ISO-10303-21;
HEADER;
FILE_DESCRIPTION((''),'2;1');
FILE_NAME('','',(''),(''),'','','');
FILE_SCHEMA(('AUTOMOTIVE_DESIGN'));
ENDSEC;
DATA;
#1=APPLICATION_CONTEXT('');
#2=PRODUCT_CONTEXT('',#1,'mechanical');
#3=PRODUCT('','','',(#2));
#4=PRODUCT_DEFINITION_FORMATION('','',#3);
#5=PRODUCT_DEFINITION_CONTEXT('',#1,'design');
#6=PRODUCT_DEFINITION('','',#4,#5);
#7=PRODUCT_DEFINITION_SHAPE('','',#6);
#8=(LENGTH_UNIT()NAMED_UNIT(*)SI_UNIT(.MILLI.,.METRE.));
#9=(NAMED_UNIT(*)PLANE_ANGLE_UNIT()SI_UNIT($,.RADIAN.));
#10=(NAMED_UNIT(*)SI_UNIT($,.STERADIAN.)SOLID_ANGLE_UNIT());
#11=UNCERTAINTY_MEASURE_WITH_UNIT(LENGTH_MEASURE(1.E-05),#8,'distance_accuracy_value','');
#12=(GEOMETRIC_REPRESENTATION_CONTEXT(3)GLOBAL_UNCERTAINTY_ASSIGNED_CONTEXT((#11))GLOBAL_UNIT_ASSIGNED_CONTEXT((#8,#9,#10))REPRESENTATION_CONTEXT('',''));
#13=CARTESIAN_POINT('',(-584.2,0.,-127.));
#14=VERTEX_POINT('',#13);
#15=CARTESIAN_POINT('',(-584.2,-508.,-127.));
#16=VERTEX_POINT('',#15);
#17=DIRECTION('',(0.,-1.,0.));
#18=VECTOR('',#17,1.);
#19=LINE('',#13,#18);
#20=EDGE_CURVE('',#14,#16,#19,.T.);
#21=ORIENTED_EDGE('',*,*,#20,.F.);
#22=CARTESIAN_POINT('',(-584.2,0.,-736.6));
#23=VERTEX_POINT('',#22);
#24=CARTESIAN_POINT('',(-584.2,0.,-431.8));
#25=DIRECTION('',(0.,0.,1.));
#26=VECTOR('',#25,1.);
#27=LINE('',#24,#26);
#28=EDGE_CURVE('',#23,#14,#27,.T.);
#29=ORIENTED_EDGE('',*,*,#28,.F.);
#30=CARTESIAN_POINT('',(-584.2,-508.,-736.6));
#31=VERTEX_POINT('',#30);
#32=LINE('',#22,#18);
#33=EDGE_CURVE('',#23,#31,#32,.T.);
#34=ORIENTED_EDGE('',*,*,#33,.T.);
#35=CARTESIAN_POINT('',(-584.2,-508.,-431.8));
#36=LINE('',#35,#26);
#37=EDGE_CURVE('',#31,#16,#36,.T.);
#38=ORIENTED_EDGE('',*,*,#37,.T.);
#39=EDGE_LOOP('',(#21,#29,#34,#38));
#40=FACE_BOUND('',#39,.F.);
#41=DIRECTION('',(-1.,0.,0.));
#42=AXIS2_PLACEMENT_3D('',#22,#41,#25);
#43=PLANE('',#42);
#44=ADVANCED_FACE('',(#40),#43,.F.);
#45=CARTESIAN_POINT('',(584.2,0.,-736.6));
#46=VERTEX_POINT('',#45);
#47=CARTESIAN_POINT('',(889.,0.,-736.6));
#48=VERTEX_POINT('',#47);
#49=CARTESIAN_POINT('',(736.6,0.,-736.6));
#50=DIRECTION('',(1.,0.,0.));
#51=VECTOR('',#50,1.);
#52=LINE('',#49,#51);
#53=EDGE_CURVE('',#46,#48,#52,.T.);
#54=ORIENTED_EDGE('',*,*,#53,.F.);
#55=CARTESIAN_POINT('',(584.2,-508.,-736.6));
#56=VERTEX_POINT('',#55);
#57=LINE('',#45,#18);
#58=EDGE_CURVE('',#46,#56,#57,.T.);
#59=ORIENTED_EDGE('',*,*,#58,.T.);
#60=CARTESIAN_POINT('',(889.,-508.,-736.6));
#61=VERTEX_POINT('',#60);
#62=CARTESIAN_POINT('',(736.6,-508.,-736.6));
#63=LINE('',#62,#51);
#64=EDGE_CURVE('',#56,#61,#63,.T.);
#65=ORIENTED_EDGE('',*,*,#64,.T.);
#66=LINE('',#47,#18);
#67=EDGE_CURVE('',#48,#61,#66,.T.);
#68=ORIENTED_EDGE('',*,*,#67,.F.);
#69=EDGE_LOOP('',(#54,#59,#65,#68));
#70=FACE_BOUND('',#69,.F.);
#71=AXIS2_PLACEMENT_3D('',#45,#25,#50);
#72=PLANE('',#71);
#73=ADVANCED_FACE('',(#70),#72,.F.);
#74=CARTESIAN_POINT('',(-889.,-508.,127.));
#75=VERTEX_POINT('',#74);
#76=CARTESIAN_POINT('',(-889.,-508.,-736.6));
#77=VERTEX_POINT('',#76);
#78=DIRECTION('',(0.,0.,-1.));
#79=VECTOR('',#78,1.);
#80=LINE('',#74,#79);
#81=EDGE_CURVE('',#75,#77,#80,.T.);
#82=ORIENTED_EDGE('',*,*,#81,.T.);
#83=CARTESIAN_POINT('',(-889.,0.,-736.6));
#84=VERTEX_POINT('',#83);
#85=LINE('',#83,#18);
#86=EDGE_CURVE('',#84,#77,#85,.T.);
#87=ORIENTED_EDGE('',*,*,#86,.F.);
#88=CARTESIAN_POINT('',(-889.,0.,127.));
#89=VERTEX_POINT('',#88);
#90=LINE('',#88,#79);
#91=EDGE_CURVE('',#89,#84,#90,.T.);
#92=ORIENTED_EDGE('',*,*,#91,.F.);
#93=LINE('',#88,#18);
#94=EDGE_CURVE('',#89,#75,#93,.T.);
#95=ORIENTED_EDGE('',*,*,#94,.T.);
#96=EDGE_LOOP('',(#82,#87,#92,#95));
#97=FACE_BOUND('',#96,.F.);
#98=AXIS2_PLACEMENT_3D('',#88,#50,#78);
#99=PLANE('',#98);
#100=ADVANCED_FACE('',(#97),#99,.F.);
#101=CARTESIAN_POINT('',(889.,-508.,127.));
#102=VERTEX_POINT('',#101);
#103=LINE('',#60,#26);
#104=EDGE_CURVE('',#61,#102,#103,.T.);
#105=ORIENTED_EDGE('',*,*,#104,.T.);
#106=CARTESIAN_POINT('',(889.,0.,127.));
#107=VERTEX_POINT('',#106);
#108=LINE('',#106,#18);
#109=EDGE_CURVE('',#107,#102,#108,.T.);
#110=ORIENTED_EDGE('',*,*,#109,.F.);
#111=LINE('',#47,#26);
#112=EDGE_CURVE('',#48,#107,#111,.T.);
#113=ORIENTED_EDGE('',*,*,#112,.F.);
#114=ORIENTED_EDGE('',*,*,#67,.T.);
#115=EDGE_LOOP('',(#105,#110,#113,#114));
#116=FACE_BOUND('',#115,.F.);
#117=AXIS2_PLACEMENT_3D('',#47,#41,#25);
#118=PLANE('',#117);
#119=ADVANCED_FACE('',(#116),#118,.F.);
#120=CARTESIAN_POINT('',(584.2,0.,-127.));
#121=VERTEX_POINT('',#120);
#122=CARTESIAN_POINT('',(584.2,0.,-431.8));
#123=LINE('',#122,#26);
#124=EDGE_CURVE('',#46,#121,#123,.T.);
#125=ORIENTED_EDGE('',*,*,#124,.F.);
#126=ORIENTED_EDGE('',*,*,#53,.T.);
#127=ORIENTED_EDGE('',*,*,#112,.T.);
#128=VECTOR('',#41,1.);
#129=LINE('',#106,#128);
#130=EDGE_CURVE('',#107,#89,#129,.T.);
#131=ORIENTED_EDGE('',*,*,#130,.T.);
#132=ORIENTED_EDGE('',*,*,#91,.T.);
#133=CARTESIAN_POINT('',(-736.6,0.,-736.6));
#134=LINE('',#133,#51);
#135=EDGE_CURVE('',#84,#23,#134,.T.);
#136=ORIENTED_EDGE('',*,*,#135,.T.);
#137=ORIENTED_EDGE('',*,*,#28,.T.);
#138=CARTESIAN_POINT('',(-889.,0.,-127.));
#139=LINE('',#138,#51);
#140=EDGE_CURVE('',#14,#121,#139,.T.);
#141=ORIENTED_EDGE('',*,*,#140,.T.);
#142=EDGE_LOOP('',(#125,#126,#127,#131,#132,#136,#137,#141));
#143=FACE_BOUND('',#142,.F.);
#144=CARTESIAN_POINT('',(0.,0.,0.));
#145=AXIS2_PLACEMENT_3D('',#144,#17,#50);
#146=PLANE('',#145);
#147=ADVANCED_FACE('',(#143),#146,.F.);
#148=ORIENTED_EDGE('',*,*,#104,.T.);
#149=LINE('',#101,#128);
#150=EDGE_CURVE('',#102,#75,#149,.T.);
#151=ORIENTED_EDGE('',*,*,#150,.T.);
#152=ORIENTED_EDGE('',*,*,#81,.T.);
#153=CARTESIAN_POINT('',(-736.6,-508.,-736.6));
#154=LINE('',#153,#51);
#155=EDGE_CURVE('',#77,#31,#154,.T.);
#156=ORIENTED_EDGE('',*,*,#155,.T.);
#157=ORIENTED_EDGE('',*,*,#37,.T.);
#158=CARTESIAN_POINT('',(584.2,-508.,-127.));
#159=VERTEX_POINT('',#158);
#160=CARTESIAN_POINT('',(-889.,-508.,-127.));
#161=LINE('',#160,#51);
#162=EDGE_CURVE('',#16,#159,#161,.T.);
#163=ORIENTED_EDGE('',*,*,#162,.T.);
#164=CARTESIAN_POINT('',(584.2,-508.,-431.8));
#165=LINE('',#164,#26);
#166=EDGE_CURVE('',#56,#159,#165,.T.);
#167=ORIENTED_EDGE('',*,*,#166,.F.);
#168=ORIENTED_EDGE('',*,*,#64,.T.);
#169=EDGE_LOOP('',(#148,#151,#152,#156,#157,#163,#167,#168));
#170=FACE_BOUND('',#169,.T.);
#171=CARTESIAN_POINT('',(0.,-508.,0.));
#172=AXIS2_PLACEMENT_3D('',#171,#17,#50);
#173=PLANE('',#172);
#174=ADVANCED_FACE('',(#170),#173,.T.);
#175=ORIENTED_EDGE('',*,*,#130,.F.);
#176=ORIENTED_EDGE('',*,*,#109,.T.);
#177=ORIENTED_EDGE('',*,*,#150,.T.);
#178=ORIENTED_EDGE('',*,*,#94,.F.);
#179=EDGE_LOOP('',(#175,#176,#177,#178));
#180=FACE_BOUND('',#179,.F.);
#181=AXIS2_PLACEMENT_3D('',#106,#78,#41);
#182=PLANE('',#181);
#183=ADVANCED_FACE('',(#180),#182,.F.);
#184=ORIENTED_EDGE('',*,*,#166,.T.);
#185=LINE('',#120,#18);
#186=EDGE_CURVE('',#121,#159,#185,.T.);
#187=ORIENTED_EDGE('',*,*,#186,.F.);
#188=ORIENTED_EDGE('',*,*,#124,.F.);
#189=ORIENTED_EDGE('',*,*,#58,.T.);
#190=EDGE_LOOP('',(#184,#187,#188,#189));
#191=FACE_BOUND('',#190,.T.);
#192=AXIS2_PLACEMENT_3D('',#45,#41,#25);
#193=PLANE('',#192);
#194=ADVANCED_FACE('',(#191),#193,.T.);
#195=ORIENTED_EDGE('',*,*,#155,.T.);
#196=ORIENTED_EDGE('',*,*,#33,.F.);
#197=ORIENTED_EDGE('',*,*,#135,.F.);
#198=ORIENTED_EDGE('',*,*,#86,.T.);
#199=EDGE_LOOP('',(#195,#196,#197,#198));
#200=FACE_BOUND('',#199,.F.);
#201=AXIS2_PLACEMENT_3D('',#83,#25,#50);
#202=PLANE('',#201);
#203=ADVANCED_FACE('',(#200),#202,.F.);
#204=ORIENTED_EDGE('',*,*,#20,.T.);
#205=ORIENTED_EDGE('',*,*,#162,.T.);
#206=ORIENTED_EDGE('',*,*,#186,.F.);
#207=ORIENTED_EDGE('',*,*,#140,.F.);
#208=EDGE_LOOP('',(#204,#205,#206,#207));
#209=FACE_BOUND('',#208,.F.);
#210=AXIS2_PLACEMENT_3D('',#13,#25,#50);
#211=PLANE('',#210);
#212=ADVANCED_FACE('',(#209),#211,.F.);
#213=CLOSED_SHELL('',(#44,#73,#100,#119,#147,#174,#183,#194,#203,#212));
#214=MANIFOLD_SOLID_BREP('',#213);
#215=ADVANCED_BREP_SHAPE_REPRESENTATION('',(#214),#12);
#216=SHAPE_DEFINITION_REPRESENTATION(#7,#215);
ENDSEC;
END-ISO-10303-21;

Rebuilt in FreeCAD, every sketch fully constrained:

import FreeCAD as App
import Part
import Sketcher
from FreeCAD import Vector
Q = App.Units.Quantity


def add_polygon(sketch, points):
    """Adds a closed chain of lines whose ends are joined by coincident constraints."""
    first, n = sketch.GeometryCount, len(points)
    for a, b in zip(points, points[1:] + points[:1]):
        sketch.addGeometry(Part.LineSegment(App.Vector(*a, 0), App.Vector(*b, 0)), False)
    for i in range(n):
        sketch.addConstraint(Sketcher.Constraint("Coincident", first + i, 2, first + (i + 1) % n, 1))

doc = App.newDocument("Part")
body = doc.addObject("PartDesign::Body", "Body")

# Sketch on XZ plane
sketch1 = doc.addObject("Sketcher::SketchObject", "Sketch")
body.addObject(sketch1)
sketch1.AttachmentSupport = (doc.XZ_Plane, [""])
sketch1.MapMode = "FlatFace"
add_polygon(sketch1, [(889, 127), (-889, 127), (-889, -737), (-584, -737), (-584, -127), (584, -127), (584, -737), (889, -737)])  # lines 0-7
sketch1.addConstraint(Sketcher.Constraint("Horizontal", 0))
sketch1.addConstraint(Sketcher.Constraint("Vertical", 1))
sketch1.addConstraint(Sketcher.Constraint("Horizontal", 2))
sketch1.addConstraint(Sketcher.Constraint("Vertical", 3))
sketch1.addConstraint(Sketcher.Constraint("Horizontal", 4))
sketch1.addConstraint(Sketcher.Constraint("Vertical", 5))
sketch1.addConstraint(Sketcher.Constraint("Horizontal", 6))
sketch1.addConstraint(Sketcher.Constraint("Vertical", 7))
sketch1.addConstraint(Sketcher.Constraint("Symmetric", 2, 2, 5, 2, -2))
sketch1.addConstraint(Sketcher.Constraint("Equal", 2, 6))
sketch1.addConstraint(Sketcher.Constraint("DistanceX", 0, 2, 0, 1, Q("70 in")))
sketch1.addConstraint(Sketcher.Constraint("DistanceX", 2, 1, 2, 2, Q("12 in")))
sketch1.addConstraint(Sketcher.Constraint("DistanceY", 1, 2, 1, 1, Q("34 in")))
sketch1.addConstraint(Sketcher.Constraint("DistanceY", 3, 1, 3, 2, Q("24 in")))
sketch1.addConstraint(Sketcher.Constraint("DistanceY", -1, 1, 0, 2, Q("5 in")))
pad1 = doc.addObject("PartDesign::Pad", "Pad")
body.addObject(pad1)
pad1.Profile = sketch1
pad1.Length = Q("20 in")

doc.recompute()
